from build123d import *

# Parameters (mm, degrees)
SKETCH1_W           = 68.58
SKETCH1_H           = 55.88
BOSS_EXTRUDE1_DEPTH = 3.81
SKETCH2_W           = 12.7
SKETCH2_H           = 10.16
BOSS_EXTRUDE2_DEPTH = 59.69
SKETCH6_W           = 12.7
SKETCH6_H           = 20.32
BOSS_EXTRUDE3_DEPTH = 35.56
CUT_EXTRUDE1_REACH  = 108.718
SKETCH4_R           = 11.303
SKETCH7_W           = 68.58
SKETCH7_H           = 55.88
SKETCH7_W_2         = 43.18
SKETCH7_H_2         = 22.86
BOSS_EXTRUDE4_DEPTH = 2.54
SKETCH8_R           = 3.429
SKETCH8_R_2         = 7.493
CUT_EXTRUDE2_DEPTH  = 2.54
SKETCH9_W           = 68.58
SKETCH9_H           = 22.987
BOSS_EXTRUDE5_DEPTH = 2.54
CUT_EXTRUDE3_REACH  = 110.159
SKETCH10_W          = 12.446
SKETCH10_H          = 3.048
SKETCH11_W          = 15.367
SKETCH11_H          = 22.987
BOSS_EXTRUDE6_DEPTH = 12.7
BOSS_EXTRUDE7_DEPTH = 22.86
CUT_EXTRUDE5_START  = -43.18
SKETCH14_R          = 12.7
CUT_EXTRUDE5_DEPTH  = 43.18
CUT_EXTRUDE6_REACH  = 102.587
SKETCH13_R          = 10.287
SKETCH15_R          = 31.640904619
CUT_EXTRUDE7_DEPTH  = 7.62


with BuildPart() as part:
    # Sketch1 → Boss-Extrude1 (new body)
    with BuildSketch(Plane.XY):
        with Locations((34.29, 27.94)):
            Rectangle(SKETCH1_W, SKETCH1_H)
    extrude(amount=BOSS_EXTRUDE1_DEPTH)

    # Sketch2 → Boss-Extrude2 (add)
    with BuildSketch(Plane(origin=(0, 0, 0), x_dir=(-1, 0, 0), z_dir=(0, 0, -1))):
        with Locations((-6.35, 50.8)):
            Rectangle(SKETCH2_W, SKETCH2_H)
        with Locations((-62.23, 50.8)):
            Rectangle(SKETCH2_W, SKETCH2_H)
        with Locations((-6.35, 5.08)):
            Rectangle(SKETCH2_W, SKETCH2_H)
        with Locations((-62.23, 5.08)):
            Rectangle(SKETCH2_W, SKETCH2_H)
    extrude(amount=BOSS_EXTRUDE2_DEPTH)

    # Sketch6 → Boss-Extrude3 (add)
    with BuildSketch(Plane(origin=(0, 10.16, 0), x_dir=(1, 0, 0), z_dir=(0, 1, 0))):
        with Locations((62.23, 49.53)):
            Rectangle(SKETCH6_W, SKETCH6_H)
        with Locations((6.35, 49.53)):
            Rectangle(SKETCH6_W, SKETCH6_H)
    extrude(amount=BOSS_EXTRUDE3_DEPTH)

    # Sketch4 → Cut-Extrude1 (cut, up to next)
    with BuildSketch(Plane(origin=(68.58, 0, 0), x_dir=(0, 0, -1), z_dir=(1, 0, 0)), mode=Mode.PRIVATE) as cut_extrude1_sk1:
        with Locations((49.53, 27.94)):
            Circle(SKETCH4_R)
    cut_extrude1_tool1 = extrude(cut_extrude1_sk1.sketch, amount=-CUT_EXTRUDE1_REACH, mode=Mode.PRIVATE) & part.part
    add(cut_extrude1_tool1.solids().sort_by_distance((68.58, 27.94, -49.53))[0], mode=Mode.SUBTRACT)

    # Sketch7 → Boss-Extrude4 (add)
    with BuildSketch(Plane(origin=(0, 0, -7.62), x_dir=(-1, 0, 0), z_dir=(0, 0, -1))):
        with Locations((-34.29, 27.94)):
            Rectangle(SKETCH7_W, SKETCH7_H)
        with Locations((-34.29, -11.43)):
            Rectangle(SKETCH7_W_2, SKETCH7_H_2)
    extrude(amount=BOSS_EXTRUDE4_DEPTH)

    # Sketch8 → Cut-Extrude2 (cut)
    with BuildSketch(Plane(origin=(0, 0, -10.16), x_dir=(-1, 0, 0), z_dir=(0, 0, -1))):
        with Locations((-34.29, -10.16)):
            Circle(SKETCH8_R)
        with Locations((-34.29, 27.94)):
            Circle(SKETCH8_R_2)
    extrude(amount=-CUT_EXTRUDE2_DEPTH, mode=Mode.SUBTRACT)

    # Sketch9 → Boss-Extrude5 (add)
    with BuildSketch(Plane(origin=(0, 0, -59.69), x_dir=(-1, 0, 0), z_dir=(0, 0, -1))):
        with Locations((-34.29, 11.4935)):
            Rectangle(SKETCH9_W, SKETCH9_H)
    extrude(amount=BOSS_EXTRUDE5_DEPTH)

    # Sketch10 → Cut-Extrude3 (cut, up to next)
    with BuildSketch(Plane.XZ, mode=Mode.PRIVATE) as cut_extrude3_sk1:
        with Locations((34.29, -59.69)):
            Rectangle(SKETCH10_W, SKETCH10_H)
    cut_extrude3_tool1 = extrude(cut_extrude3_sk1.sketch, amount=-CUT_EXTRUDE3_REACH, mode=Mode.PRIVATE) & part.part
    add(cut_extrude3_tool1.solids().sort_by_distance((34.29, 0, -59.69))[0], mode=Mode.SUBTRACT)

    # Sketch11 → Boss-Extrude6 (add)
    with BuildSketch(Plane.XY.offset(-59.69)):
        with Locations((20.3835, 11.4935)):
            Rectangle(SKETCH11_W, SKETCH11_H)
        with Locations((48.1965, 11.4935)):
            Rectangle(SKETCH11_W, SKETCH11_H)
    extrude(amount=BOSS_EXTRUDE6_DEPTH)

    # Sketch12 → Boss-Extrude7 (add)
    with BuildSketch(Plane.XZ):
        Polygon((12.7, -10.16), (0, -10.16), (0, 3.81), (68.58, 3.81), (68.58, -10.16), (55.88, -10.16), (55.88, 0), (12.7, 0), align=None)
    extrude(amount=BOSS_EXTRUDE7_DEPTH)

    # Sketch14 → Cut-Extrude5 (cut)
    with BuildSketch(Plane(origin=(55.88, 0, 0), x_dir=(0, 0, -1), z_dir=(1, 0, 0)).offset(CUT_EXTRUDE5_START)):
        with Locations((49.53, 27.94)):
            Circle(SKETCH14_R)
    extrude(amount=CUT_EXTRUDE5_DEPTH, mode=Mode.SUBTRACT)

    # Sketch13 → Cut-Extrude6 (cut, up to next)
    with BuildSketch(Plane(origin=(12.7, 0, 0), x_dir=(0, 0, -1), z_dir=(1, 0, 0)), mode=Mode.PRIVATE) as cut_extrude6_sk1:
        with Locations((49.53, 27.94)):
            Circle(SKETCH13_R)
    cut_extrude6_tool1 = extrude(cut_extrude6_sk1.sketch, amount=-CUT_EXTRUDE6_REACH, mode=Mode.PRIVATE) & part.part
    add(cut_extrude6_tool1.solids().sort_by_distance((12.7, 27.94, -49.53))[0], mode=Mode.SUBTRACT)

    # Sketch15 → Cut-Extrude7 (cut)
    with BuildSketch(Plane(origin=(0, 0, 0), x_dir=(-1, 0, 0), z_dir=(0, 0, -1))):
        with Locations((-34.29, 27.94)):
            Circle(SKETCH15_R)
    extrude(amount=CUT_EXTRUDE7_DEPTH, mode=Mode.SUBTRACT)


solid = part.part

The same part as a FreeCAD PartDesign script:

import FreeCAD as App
import Part
import Sketcher
Q = App.Units.Quantity


def add_polygon(sketch, points):
    """Adds a closed chain of lines whose ends are joined by coincident constraints."""
    first, n = sketch.GeometryCount, len(points)
    for a, b in zip(points, points[1:] + points[:1]):
        sketch.addGeometry(Part.LineSegment(App.Vector(*a, 0), App.Vector(*b, 0)), False)
    for i in range(n):
        sketch.addConstraint(Sketcher.Constraint("Coincident", first + i, 2, first + (i + 1) % n, 1))

doc = App.newDocument("Part")
params = doc.addObject("Spreadsheet::Sheet", "Params")
for row, (alias, value) in enumerate([
    ("sketch1_width", "2.7 in"),
    ("sketch1_height", "2.2 in"),
    ("pad1_length", "0.15 in"),
    ("sketch2_width", "0.5 in"),
    ("sketch2_height", "0.4 in"),
    ("pad2_length", "2.35 in"),
    ("sketch3_width", "0.5 in"),
    ("sketch3_height", "0.8 in"),
    ("pad3_length", "1.4 in"),
    ("sketch4_diameter", "0.89 in"),
    ("sketch5_width", "0.5 in"),
    ("sketch5_width2", "1.7 in"),
    ("sketch5_height", "2.2 in"),
    ("sketch5_height2", "0.9 in"),
    ("pad4_length", "0.1 in"),
    ("sketch6_diameter", "0.27 in"),
    ("sketch6_diameter2", "0.59 in"),
    ("pocket2_length", "0.1 in"),
    ("sketch7_width", "2.7 in"),
    ("sketch7_height", "0.905 in"),
    ("pad5_length", "0.1 in"),
    ("sketch8_width", "0.49 in"),
    ("sketch8_height", "0.12 in"),
    ("sketch9_width", "0.605 in"),
    ("sketch9_height", "0.905 in"),
    ("pad6_length", "0.5 in"),
    ("sketch10_width", "0.5 in"),
    ("sketch10_width2", "1.7 in"),
    ("sketch10_height", "0.4 in"),
    ("sketch10_height2", "0.55 in"),
    ("pad7_length", "0.9 in"),
    ("sketch11_diameter", "1 in"),
    ("pocket4_length", "1.7 in"),
    ("sketch12_diameter", "0.81 in"),
    ("pocket6_length", "0.3 in"),
], start=1):
    params.set(f"A{row}", alias)
    params.set(f"B{row}", "=" + value)
    params.setAlias(f"B{row}", alias)

body = doc.addObject("PartDesign::Body", "Body")

# Sketch on XY plane
sketch1 = body.newObject("Sketcher::SketchObject", "Sketch")
sketch1.AttachmentSupport = (doc.getObject("XY_Plane"), [""])
sketch1.MapMode = "FlatFace"
add_polygon(sketch1, [(0, 56), (0, 0), (69, 0), (69, 56)])  # lines 0-3
sketch1.addConstraint([
    Sketcher.Constraint("Vertical", 0),
    Sketcher.Constraint("Horizontal", 1),
    Sketcher.Constraint("Vertical", 2),
    Sketcher.Constraint("Horizontal", 3),
    Sketcher.Constraint("Coincident", 0, 2, -1, 1),
    Sketcher.Constraint("DistanceX", 1, 1, 1, 2, Q("2.7 in")),
    Sketcher.Constraint("DistanceY", 0, 2, 0, 1, Q("2.2 in")),
])
sketch1.setExpression("Constraints[9]", "Params.sketch1_width")
sketch1.setExpression("Constraints[10]", "Params.sketch1_height")
pad1 = body.newObject("PartDesign::Pad", "Pad")
pad1.Profile = sketch1
pad1.setExpression("Length", "Params.pad1_length")

# Sketch on XY plane
sketch2 = body.newObject("Sketcher::SketchObject", "Sketch001")
sketch2.AttachmentSupport = (doc.getObject("XY_Plane"), [""])
sketch2.MapMode = "FlatFace"
add_polygon(sketch2, [(13, 56), (13, 46), (0, 46), (0, 56)])  # lines 0-3
add_polygon(sketch2, [(69, 56), (69, 46), (56, 46), (56, 56)])  # lines 4-7
add_polygon(sketch2, [(13, 10), (13, 0), (0, 0), (0, 10)])  # lines 8-11
add_polygon(sketch2, [(69, 10), (69, 0), (56, 0), (56, 10)])  # lines 12-15
sketch2.addConstraint([
    Sketcher.Constraint("Vertical", 0),
    Sketcher.Constraint("Horizontal", 1),
    Sketcher.Constraint("Vertical", 2),
    Sketcher.Constraint("Horizontal", 3),
    Sketcher.Constraint("Vertical", 4),
    Sketcher.Constraint("Horizontal", 5),
    Sketcher.Constraint("Vertical", 6),
    Sketcher.Constraint("Horizontal", 7),
    Sketcher.Constraint("Vertical", 8),
    Sketcher.Constraint("Horizontal", 9),
    Sketcher.Constraint("Vertical", 10),
    Sketcher.Constraint("Horizontal", 11),
    Sketcher.Constraint("Vertical", 12),
    Sketcher.Constraint("Horizontal", 13),
    Sketcher.Constraint("Vertical", 14),
    Sketcher.Constraint("Horizontal", 15),
    Sketcher.Constraint("Coincident", 9, 2, -1, 1),
    Sketcher.Constraint("PointOnObject", 1, 2, -2),
    Sketcher.Constraint("PointOnObject", 12, 2, -1),
    Sketcher.Constraint("Horizontal", 1, 2, 4, 2),
    Sketcher.Constraint("Horizontal", 3, 2, 6, 2),
    Sketcher.Constraint("Horizontal", 11, 2, 14, 2),
    Sketcher.Constraint("Vertical", 3, 2, 8, 2),
    Sketcher.Constraint("Vertical", 7, 2, 12, 2),
    Sketcher.Constraint("Vertical", 6, 2, 13, 2),
    Sketcher.Constraint("Equal", 3, 5),
    Sketcher.Constraint("Equal", 6, 8),
    Sketcher.Constraint("DistanceX", 1, 2, 1, 1, Q("0.5 in")),
    Sketcher.Constraint("DistanceY", 0, 2, 0, 1, Q("0.4 in")),
    Sketcher.Constraint("DistanceY", -1, 1, 0, 2, Q("1.8 in")),
    Sketcher.Constraint("DistanceX", -1, 1, 4, 2, Q("2.7 in")),
])
sketch2.setExpression("Constraints[43]", "Params.sketch2_width")
sketch2.setExpression("Constraints[44]", "Params.sketch2_height")
pad2 = body.newObject("PartDesign::Pad", "Pad001")
pad2.Profile = sketch2
pad2.setExpression("Length", "Params.pad2_length")
pad2.Reversed = True

# Sketch on XZ plane
sketch3 = body.newObject("Sketcher::SketchObject", "Sketch002")
sketch3.AttachmentSupport = (doc.getObject("XZ_Plane"), [""])
sketch3.MapMode = "FlatFace"
sketch3.AttachmentOffset = App.Placement(App.Vector(0, 0, -0.4 * 25.4), App.Rotation())
add_polygon(sketch3, [(56, -60), (56, -39), (69, -39), (69, -60)])  # lines 0-3
add_polygon(sketch3, [(0, -60), (0, -39), (13, -39), (13, -60)])  # lines 4-7
sketch3.addConstraint([
    Sketcher.Constraint("Vertical", 0),
    Sketcher.Constraint("Horizontal", 1),
    Sketcher.Constraint("Vertical", 2),
    Sketcher.Constraint("Horizontal", 3),
    Sketcher.Constraint("Vertical", 4),
    Sketcher.Constraint("Horizontal", 5),
    Sketcher.Constraint("Vertical", 6),
    Sketcher.Constraint("Horizontal", 7),
    Sketcher.Constraint("PointOnObject", 4, 2, -2),
    Sketcher.Constraint("Horizontal", 1, 2, 4, 2),
    Sketcher.Constraint("Horizontal", 3, 2, 6, 2),
    Sketcher.Constraint("Equal", 3, 5),
    Sketcher.Constraint("DistanceX", 1, 1, 1, 2, Q("0.5 in")),
    Sketcher.Constraint("DistanceY", 0, 1, 0, 2, Q("0.8 in")),
    Sketcher.Constraint("DistanceX", -1, 1, 0, 2, Q("2.2 in")),
    Sketcher.Constraint("DistanceY", 0, 2, -1, 1, Q("1.55 in")),
])
sketch3.setExpression("Constraints[20]", "Params.sketch3_width")
sketch3.setExpression("Constraints[21]", "Params.sketch3_height")
pad3 = body.newObject("PartDesign::Pad", "Pad002")
pad3.Profile = sketch3
pad3.setExpression("Length", "Params.pad3_length")
pad3.Reversed = True

# Sketch on YZ plane
sketch4 = body.newObject("Sketcher::SketchObject", "Sketch003")
sketch4.AttachmentSupport = (doc.getObject("YZ_Plane"), [""])
sketch4.MapMode = "FlatFace"
sketch4.AttachmentOffset = App.Placement(App.Vector(0, 0, 2.7 * 25.4), App.Rotation())
sketch4.addGeometry(Part.Circle(App.Vector(28, -50, 0), App.Vector(0, 0, 1), 11), False)
sketch4.addConstraint([
    Sketcher.Constraint("Diameter", 0, Q("0.89 in")),
    Sketcher.Constraint("DistanceX", -1, 1, 0, 3, Q("1.1 in")),
    Sketcher.Constraint("DistanceY", 0, 3, -1, 1, Q("1.95 in")),
])
sketch4.setExpression("Constraints[0]", "Params.sketch4_diameter")
pocket1 = body.newObject("PartDesign::Pocket", "Pocket")
pocket1.Profile = sketch4
pocket1.Type = "UpToFirst"

# Sketch on XY plane
sketch5 = body.newObject("Sketcher::SketchObject", "Sketch004")
sketch5.AttachmentSupport = (doc.getObject("XY_Plane"), [""])
sketch5.MapMode = "FlatFace"
sketch5.AttachmentOffset = App.Placement(App.Vector(0, 0, -0.3 * 25.4), App.Rotation())
add_polygon(sketch5, [(69, 56), (69, 0), (56, 0), (56, -23), (13, -23), (13, 0), (0, 0), (0, 56)])  # lines 0-7
sketch5.addConstraint([
    Sketcher.Constraint("Vertical", 0),
    Sketcher.Constraint("Horizontal", 1),
    Sketcher.Constraint("Vertical", 2),
    Sketcher.Constraint("Horizontal", 3),
    Sketcher.Constraint("Vertical", 4),
    Sketcher.Constraint("Horizontal", 5),
    Sketcher.Constraint("Vertical", 6),
    Sketcher.Constraint("Horizontal", 7),
    Sketcher.Constraint("Coincident", 5, 2, -1, 1),
    Sketcher.Constraint("PointOnObject", 0, 2, -1),
    Sketcher.Constraint("Equal", 1, 5),
    Sketcher.Constraint("DistanceX", 1, 2, 1, 1, Q("0.5 in")),
    Sketcher.Constraint("DistanceX", 3, 2, 3, 1, Q("1.7 in")),
    Sketcher.Constraint("DistanceY", 0, 2, 0, 1, Q("2.2 in")),
    Sketcher.Constraint("DistanceY", 2, 2, 2, 1, Q("0.9 in")),
])
sketch5.setExpression("Constraints[19]", "Params.sketch5_width")
sketch5.setExpression("Constraints[20]", "Params.sketch5_width2")
sketch5.setExpression("Constraints[21]", "Params.sketch5_height")
sketch5.setExpression("Constraints[22]", "Params.sketch5_height2")
pad4 = body.newObject("PartDesign::Pad", "Pad003")
pad4.Profile = sketch5
pad4.setExpression("Length", "Params.pad4_length")
pad4.Reversed = True

# Sketch on XY plane
sketch6 = body.newObject("Sketcher::SketchObject", "Sketch005")
sketch6.AttachmentSupport = (doc.getObject("XY_Plane"), [""])
sketch6.MapMode = "FlatFace"
sketch6.AttachmentOffset = App.Placement(App.Vector(0, 0, -0.4 * 25.4), App.Rotation())
sketch6.addGeometry([
    Part.Circle(App.Vector(34.3, -10.2, 0), App.Vector(0, 0, 1), 3.4),
    Part.Circle(App.Vector(34.3, 27.9, 0), App.Vector(0, 0, 1), 7.5),
], False)
sketch6.addConstraint([
    Sketcher.Constraint("Vertical", 0, 3, 1, 3),
    Sketcher.Constraint("Diameter", 0, Q("0.27 in")),
    Sketcher.Constraint("Diameter", 1, Q("0.59 in")),
    Sketcher.Constraint("DistanceY", 0, 3, -1, 1, Q("0.4 in")),
    Sketcher.Constraint("DistanceY", -1, 1, 1, 3, Q("1.1 in")),
    Sketcher.Constraint("DistanceX", -1, 1, 0, 3, Q("1.35 in")),
])
sketch6.setExpression("Constraints[1]", "Params.sketch6_diameter")
sketch6.setExpression("Constraints[2]", "Params.sketch6_diameter2")
pocket2 = body.newObject("PartDesign::Pocket", "Pocket001")
pocket2.Profile = sketch6
pocket2.setExpression("Length", "Params.pocket2_length")
pocket2.Reversed = True

# Sketch on XY plane
sketch7 = body.newObject("Sketcher::SketchObject", "Sketch006")
sketch7.AttachmentSupport = (doc.getObject("XY_Plane"), [""])
sketch7.MapMode = "FlatFace"
sketch7.AttachmentOffset = App.Placement(App.Vector(0, 0, -2.35 * 25.4), App.Rotation())
add_polygon(sketch7, [(69, 23), (69, 0), (0, 0), (0, 23)])  # lines 0-3
sketch7.addConstraint([
    Sketcher.Constraint("Vertical", 0),
    Sketcher.Constraint("Horizontal", 1),
    Sketcher.Constraint("Vertical", 2),
    Sketcher.Constraint("Horizontal", 3),
    Sketcher.Constraint("Coincident", 1, 2, -1, 1),
    Sketcher.Constraint("DistanceX", 1, 2, 1, 1, Q("2.7 in")),
    Sketcher.Constraint("DistanceY", 0, 2, 0, 1, Q("0.905 in")),
])
sketch7.setExpression("Constraints[9]", "Params.sketch7_width")
sketch7.setExpression("Constraints[10]", "Params.sketch7_height")
pad5 = body.newObject("PartDesign::Pad", "Pad004")
pad5.Profile = sketch7
pad5.setExpression("Length", "Params.pad5_length")
pad5.Reversed = True

# Sketch on XZ plane
sketch8 = body.newObject("Sketcher::SketchObject", "Sketch007")
sketch8.AttachmentSupport = (doc.getObject("XZ_Plane"), [""])
sketch8.MapMode = "FlatFace"
add_polygon(sketch8, [(28.1, -58.2), (28.1, -61.2), (40.5, -61.2), (40.5, -58.2)])  # lines 0-3
sketch8.addConstraint([
    Sketcher.Constraint("Vertical", 0),
    Sketcher.Constraint("Horizontal", 1),
    Sketcher.Constraint("Vertical", 2),
    Sketcher.Constraint("Horizontal", 3),
    Sketcher.Constraint("DistanceX", 1, 1, 1, 2, Q("0.49 in")),
    Sketcher.Constraint("DistanceY", 0, 2, 0, 1, Q("0.12 in")),
    Sketcher.Constraint("DistanceY", 0, 2, -1, 1, Q("2.41 in")),
    Sketcher.Constraint("DistanceX", -1, 1, 0, 2, Q("1.105 in")),
])
sketch8.setExpression("Constraints[8]", "Params.sketch8_width")
sketch8.setExpression("Constraints[9]", "Params.sketch8_height")
pocket3 = body.newObject("PartDesign::Pocket", "Pocket002")
pocket3.Profile = sketch8
pocket3.Type = "UpToFirst"

# Sketch on XY plane
sketch9 = body.newObject("Sketcher::SketchObject", "Sketch008")
sketch9.AttachmentSupport = (doc.getObject("XY_Plane"), [""])
sketch9.MapMode = "FlatFace"
sketch9.AttachmentOffset = App.Placement(App.Vector(0, 0, -2.35 * 25.4), App.Rotation())
add_polygon(sketch9, [(13, 23), (13, 0), (28, 0), (28, 23)])  # lines 0-3
add_polygon(sketch9, [(41, 23), (41, 0), (56, 0), (56, 23)])  # lines 4-7
sketch9.addConstraint([
    Sketcher.Constraint("Vertical", 0),
    Sketcher.Constraint("Horizontal", 1),
    Sketcher.Constraint("Vertical", 2),
    Sketcher.Constraint("Horizontal", 3),
    Sketcher.Constraint("Vertical", 4),
    Sketcher.Constraint("Horizontal", 5),
    Sketcher.Constraint("Vertical", 6),
    Sketcher.Constraint("Horizontal", 7),
    Sketcher.Constraint("PointOnObject", 0, 2, -1),
    Sketcher.Constraint("PointOnObject", 4, 2, -1),
    Sketcher.Constraint("Horizontal", 3, 2, 6, 2),
    Sketcher.Constraint("Equal", 3, 5),
    Sketcher.Constraint("DistanceX", -1, 1, 0, 2, Q("0.5 in")),
    Sketcher.Constraint("DistanceX", -1, 1, 5, 2, Q("2.2 in")),
    Sketcher.Constraint("DistanceX", 1, 1, 1, 2, Q("0.605 in")),
    Sketcher.Constraint("DistanceY", 0, 2, 0, 1, Q("0.905 in")),
])
sketch9.setExpression("Constraints[22]", "Params.sketch9_width")
sketch9.setExpression("Constraints[23]", "Params.sketch9_height")
pad6 = body.newObject("PartDesign::Pad", "Pad005")
pad6.Profile = sketch9
pad6.setExpression("Length", "Params.pad6_length")

# Sketch on XZ plane
sketch10 = body.newObject("Sketcher::SketchObject", "Sketch009")
sketch10.AttachmentSupport = (doc.getObject("XZ_Plane"), [""])
sketch10.MapMode = "FlatFace"
add_polygon(sketch10, [(0, -10), (13, -10), (13, 0), (56, 0), (56, -10), (69, -10), (69, 4), (0, 4)])  # lines 0-7
sketch10.addConstraint([
    Sketcher.Constraint("Horizontal", 0),
    Sketcher.Constraint("Vertical", 1),
    Sketcher.Constraint("Horizontal", 2),
    Sketcher.Constraint("Vertical", 3),
    Sketcher.Constraint("Horizontal", 4),
    Sketcher.Constraint("Vertical", 5),
    Sketcher.Constraint("Horizontal", 6),
    Sketcher.Constraint("Vertical", 7),
    Sketcher.Constraint("PointOnObject", 1, 2, -1),
    Sketcher.Constraint("PointOnObject", 6, 2, -2),
    Sketcher.Constraint("Horizontal", 0, 2, 3, 2),
    Sketcher.Constraint("Equal", 0, 4),
    Sketcher.Constraint("DistanceX", 0, 1, 0, 2, Q("0.5 in")),
    Sketcher.Constraint("DistanceX", 2, 1, 2, 2, Q("1.7 in")),
    Sketcher.Constraint("DistanceY", 1, 1, 1, 2, Q("0.4 in")),
    Sketcher.Constraint("DistanceY", 5, 1, 5, 2, Q("0.55 in")),
])
sketch10.setExpression("Constraints[20]", "Params.sketch10_width")
sketch10.setExpression("Constraints[21]", "Params.sketch10_width2")
sketch10.setExpression("Constraints[22]", "Params.sketch10_height")
sketch10.setExpression("Constraints[23]", "Params.sketch10_height2")
pad7 = body.newObject("PartDesign::Pad", "Pad006")
pad7.Profile = sketch10
pad7.setExpression("Length", "Params.pad7_length")

# Sketch on YZ plane
sketch11 = body.newObject("Sketcher::SketchObject", "Sketch010")
sketch11.AttachmentSupport = (doc.getObject("YZ_Plane"), [""])
sketch11.MapMode = "FlatFace"
sketch11.AttachmentOffset = App.Placement(App.Vector(0, 0, 0.5 * 25.4), App.Rotation())
sketch11.addGeometry(Part.Circle(App.Vector(28, -50, 0), App.Vector(0, 0, 1), 13), False)
sketch11.addConstraint([
    Sketcher.Constraint("Diameter", 0, Q("1 in")),
    Sketcher.Constraint("DistanceX", -1, 1, 0, 3, Q("1.1 in")),
    Sketcher.Constraint("DistanceY", 0, 3, -1, 1, Q("1.95 in")),
])
sketch11.setExpression("Constraints[0]", "Params.sketch11_diameter")
pocket4 = body.newObject("PartDesign::Pocket", "Pocket003")
pocket4.Profile = sketch11
pocket4.setExpression("Length", "Params.pocket4_length")
pocket4.Reversed = True

# Sketch on YZ plane
sketch12 = body.newObject("Sketcher::SketchObject", "Sketch011")
sketch12.AttachmentSupport = (doc.getObject("YZ_Plane"), [""])
sketch12.MapMode = "FlatFace"
sketch12.AttachmentOffset = App.Placement(App.Vector(0, 0, 0.5 * 25.4), App.Rotation())
sketch12.addGeometry(Part.Circle(App.Vector(28, -50, 0), App.Vector(0, 0, 1), 10), False)
sketch12.addConstraint([
    Sketcher.Constraint("Diameter", 0, Q("0.81 in")),
    Sketcher.Constraint("DistanceX", -1, 1, 0, 3, Q("1.1 in")),
    Sketcher.Constraint("DistanceY", 0, 3, -1, 1, Q("1.95 in")),
])
sketch12.setExpression("Constraints[0]", "Params.sketch12_diameter")
pocket5 = body.newObject("PartDesign::Pocket", "Pocket004")
pocket5.Profile = sketch12
pocket5.Type = "UpToFirst"

# Sketch on XY plane
sketch13 = body.newObject("Sketcher::SketchObject", "Sketch012")
sketch13.AttachmentSupport = (doc.getObject("XY_Plane"), [""])
sketch13.MapMode = "FlatFace"
sketch13.addGeometry(Part.Circle(App.Vector(34, 28, 0), App.Vector(0, 0, 1), 32), False)
sketch13.addConstraint([
    Sketcher.Constraint("DistanceY", -1, 1, 0, 3, Q("1.1 in")),
    Sketcher.Constraint("DistanceX", -1, 1, 0, 3, Q("1.35 in")),
    Sketcher.Constraint("Diameter", 0, Q("63.281809 mm")),
])
pocket6 = body.newObject("PartDesign::Pocket", "Pocket005")
pocket6.Profile = sketch13
pocket6.setExpression("Length", "Params.pocket6_length")

doc.recompute()
